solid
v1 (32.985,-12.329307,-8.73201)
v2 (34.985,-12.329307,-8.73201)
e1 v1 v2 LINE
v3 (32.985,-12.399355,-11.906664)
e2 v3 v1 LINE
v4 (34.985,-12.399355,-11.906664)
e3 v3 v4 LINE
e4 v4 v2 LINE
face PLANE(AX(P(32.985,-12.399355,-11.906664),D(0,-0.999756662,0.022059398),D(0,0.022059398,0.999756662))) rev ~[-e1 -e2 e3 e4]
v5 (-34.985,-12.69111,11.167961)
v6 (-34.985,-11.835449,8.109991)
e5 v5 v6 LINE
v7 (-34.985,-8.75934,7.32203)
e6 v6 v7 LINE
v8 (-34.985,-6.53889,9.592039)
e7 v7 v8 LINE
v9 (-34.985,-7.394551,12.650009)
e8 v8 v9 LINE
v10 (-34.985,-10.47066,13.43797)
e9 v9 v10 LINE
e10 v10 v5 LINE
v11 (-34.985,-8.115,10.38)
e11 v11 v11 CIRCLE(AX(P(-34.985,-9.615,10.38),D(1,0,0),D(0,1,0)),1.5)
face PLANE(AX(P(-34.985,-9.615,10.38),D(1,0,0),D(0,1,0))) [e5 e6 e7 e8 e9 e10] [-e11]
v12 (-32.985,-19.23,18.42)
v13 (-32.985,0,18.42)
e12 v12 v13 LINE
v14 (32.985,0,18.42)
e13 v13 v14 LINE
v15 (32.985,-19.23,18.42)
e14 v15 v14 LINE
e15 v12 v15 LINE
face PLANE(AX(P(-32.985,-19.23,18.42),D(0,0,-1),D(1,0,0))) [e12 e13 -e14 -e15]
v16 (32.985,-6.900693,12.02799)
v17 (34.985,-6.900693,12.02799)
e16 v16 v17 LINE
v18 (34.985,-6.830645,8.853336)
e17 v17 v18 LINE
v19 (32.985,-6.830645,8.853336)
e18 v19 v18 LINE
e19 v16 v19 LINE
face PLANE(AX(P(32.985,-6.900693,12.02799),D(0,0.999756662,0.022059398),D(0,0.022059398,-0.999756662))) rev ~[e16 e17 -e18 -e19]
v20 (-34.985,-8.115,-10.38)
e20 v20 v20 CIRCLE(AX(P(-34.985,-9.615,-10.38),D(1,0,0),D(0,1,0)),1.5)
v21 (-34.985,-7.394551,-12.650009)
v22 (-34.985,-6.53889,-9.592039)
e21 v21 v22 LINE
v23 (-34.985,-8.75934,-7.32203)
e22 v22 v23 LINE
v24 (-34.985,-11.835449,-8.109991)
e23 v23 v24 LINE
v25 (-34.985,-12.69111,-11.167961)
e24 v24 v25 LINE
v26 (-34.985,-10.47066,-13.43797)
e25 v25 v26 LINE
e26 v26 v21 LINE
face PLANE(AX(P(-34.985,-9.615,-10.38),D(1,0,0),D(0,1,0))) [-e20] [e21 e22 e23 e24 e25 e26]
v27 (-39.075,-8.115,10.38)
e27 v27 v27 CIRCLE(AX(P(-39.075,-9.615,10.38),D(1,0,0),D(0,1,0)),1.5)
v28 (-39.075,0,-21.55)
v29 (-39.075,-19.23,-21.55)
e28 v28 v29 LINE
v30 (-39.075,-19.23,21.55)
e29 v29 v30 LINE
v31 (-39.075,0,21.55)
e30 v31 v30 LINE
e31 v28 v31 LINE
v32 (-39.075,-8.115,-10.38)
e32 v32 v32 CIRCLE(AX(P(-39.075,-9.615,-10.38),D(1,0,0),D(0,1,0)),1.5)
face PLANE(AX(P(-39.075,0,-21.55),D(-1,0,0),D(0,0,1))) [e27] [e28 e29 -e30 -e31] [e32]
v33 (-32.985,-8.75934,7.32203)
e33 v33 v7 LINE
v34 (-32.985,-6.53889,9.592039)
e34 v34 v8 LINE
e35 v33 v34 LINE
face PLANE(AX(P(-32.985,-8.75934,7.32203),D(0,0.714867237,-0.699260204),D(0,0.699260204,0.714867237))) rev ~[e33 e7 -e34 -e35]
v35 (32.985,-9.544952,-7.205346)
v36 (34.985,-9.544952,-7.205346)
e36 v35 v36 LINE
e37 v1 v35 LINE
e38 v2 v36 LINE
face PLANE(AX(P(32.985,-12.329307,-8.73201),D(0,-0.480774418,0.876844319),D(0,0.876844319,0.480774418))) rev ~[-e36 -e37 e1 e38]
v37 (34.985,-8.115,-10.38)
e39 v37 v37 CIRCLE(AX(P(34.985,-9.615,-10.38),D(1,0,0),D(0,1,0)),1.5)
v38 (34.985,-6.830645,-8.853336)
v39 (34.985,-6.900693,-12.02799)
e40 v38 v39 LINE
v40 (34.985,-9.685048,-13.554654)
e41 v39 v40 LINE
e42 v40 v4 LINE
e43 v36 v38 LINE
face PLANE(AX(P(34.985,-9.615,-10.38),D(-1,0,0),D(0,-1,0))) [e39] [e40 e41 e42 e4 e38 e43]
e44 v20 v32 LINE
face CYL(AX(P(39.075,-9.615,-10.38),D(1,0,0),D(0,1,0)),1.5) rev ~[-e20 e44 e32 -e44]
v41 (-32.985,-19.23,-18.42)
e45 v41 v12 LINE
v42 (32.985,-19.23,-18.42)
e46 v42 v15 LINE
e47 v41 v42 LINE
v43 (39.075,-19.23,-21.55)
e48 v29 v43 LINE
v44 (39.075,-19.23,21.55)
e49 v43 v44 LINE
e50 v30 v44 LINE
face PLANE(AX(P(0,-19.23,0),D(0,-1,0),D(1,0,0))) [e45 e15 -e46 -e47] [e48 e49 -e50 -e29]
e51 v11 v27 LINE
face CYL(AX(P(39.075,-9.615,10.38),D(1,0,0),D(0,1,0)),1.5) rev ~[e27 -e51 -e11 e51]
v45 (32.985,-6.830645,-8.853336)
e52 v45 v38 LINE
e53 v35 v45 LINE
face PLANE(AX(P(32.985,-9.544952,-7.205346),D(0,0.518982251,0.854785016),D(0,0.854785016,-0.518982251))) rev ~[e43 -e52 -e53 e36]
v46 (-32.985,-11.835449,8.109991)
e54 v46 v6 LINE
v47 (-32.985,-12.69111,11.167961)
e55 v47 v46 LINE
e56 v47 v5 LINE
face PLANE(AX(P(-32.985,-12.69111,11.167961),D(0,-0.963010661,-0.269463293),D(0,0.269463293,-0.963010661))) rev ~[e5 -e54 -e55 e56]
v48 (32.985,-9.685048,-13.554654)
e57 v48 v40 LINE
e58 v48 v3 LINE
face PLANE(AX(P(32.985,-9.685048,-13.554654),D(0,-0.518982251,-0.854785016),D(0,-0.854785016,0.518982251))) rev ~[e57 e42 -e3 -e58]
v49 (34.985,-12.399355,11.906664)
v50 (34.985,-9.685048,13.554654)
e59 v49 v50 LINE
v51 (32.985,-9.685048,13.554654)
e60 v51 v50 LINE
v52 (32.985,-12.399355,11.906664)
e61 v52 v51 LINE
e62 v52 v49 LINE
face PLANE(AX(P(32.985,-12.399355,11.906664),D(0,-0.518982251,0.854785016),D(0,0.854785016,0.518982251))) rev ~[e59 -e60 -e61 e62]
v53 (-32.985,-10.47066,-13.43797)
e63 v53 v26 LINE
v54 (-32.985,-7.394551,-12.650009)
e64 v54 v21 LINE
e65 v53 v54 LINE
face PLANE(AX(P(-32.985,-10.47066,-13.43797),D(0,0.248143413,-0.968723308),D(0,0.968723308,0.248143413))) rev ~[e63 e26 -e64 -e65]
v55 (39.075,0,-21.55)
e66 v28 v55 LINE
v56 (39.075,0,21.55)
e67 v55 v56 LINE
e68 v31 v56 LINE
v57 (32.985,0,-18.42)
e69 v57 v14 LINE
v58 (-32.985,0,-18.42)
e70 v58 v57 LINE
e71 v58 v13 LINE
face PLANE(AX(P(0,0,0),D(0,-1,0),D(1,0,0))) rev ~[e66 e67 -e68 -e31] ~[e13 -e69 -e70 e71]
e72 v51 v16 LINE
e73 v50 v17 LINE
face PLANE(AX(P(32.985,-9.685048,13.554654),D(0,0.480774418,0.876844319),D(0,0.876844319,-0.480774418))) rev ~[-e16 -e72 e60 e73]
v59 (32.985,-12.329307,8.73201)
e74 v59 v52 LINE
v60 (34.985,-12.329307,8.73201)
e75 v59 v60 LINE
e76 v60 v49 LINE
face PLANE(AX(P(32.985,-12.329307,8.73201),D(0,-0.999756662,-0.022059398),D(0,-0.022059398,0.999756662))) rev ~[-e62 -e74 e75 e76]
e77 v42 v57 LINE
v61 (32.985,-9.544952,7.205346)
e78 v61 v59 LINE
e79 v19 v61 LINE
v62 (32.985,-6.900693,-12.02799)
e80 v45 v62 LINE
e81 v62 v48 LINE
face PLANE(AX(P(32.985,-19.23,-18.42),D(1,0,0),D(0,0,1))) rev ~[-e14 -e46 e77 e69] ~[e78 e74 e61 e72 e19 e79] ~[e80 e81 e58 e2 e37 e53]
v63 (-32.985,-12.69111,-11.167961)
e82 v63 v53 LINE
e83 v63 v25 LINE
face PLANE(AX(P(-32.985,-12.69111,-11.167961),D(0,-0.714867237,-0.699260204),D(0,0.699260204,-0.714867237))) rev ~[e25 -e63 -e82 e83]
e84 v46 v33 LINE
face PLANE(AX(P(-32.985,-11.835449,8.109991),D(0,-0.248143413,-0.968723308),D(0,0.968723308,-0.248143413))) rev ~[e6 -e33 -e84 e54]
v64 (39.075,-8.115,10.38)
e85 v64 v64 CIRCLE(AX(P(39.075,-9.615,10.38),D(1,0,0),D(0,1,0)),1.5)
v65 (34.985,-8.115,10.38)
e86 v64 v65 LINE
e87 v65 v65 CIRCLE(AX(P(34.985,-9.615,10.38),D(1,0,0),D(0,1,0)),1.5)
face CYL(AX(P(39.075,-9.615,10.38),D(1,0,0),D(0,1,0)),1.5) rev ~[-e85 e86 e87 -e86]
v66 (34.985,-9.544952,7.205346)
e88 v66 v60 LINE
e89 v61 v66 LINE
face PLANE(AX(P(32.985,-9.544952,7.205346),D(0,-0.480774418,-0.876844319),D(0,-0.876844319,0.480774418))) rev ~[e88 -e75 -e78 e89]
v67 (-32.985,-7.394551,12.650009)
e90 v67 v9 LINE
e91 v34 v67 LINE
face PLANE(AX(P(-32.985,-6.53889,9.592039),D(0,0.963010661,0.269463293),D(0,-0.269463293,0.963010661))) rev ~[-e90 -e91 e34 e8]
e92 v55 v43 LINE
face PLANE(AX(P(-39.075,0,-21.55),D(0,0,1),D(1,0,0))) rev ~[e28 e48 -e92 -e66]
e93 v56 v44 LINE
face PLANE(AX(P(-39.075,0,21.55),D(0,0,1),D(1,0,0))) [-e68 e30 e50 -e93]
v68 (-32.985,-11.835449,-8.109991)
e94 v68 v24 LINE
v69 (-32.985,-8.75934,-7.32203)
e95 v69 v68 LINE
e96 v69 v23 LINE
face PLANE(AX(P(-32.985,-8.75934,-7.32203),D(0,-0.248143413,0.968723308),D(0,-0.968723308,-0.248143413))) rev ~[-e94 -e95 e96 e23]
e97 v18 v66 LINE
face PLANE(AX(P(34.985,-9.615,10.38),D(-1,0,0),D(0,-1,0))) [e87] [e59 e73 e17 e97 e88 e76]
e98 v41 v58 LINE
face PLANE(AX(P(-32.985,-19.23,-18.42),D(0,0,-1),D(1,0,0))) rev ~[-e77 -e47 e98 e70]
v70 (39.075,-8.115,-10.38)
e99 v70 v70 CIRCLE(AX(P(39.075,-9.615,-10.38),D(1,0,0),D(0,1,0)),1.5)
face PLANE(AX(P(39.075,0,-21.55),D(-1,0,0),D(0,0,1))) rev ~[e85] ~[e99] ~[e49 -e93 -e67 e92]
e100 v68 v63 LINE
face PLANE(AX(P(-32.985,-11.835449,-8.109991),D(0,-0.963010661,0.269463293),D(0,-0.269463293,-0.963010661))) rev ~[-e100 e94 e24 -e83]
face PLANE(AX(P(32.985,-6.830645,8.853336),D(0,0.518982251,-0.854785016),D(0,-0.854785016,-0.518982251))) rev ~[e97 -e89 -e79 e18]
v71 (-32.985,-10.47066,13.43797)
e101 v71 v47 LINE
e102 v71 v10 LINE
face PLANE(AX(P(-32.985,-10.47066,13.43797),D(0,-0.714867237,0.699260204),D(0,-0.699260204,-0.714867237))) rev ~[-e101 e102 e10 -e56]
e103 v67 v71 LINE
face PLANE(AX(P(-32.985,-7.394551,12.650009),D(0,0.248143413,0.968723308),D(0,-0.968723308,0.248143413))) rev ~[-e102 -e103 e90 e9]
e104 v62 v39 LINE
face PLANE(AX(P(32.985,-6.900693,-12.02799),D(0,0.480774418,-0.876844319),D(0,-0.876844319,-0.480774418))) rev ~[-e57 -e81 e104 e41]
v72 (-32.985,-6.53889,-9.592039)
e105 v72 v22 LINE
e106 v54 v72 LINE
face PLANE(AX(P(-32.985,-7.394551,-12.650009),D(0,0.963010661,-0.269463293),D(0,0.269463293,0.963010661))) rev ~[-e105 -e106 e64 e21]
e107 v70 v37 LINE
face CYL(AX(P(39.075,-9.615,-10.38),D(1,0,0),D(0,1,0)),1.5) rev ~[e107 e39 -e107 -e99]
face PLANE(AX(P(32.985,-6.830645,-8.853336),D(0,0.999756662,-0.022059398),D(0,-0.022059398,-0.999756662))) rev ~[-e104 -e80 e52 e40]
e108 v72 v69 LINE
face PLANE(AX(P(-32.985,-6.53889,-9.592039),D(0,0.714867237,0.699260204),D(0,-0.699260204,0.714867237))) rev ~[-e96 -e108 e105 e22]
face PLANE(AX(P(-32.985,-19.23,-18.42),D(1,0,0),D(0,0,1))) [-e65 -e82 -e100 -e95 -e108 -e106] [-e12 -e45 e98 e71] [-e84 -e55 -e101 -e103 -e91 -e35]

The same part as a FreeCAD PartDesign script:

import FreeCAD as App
import Part
import Sketcher
from FreeCAD import Vector
Q = App.Units.Quantity

doc = App.newDocument("Part")
body = doc.addObject("PartDesign::Body", "Body")

sketch1 = doc.addObject("Sketcher::SketchObject", "Sketch")
body.addObject(sketch1)
sketch1.AttachmentSupport = (doc.XZ_Plane, [""])
sketch1.MapMode = "FlatFace"
sketch1.addGeometry([
    Part.LineSegment(Vector(-39, 22, 0), Vector(-39, -22, 0)),
    Part.LineSegment(Vector(-39, -22, 0), Vector(39, -22, 0)),
    Part.LineSegment(Vector(39, -22, 0), Vector(39, 22, 0)),
    Part.LineSegment(Vector(39, 22, 0), Vector(-39, 22, 0)),
], False)
sketch1.addConstraint([
    Sketcher.Constraint("Coincident", 0, 2, 1, 1),
    Sketcher.Constraint("Coincident", 1, 2, 2, 1),
    Sketcher.Constraint("Coincident", 2, 2, 3, 1),
    Sketcher.Constraint("Coincident", 3, 2, 0, 1),
    Sketcher.Constraint("Vertical", 0),
    Sketcher.Constraint("Horizontal", 1),
    Sketcher.Constraint("Vertical", 2),
    Sketcher.Constraint("Horizontal", 3),
    Sketcher.Constraint("Symmetric", 0, 2, 2, 2, -1, 1),
    Sketcher.Constraint("DistanceY", 0, 2, 0, 1, Q("43.1 mm")),
    Sketcher.Constraint("DistanceX", 1, 1, 1, 2, Q("78.15 mm")),
])
pad1 = doc.addObject("PartDesign::Pad", "Pad")
body.addObject(pad1)
pad1.Profile = sketch1
pad1.Length = 19.23

sketch2 = doc.addObject("Sketcher::SketchObject", "Sketch001")
body.addObject(sketch2)
sketch2.AttachmentSupport = (doc.XZ_Plane, [""])
sketch2.MapMode = "FlatFace"
sketch2.AttachmentOffset = App.Placement(Vector(0, 0, 19.23), App.Rotation())
sketch2.addGeometry([
    Part.LineSegment(Vector(-33, 18, 0), Vector(-33, -18, 0)),
    Part.LineSegment(Vector(-33, -18, 0), Vector(33, -18, 0)),
    Part.LineSegment(Vector(33, -18, 0), Vector(33, 18, 0)),
    Part.LineSegment(Vector(33, 18, 0), Vector(-33, 18, 0)),
], False)
sketch2.addConstraint([
    Sketcher.Constraint("Coincident", 0, 2, 1, 1),
    Sketcher.Constraint("Coincident", 1, 2, 2, 1),
    Sketcher.Constraint("Coincident", 2, 2, 3, 1),
    Sketcher.Constraint("Coincident", 3, 2, 0, 1),
    Sketcher.Constraint("Vertical", 0),
    Sketcher.Constraint("Horizontal", 1),
    Sketcher.Constraint("Vertical", 2),
    Sketcher.Constraint("Horizontal", 3),
    Sketcher.Constraint("Symmetric", 0, 2, 2, 2, -1, 1),
    Sketcher.Constraint("DistanceX", 1, 1, 1, 2, Q("65.97 mm")),
    Sketcher.Constraint("DistanceY", 0, 2, 0, 1, Q("36.84 mm")),
])
pocket1 = doc.addObject("PartDesign::Pocket", "Pocket")
body.addObject(pocket1)
pocket1.Profile = sketch2
pocket1.Length = 35

sketch3 = doc.addObject("Sketcher::SketchObject", "Sketch002")
body.addObject(sketch3)
sketch3.AttachmentSupport = (doc.YZ_Plane, [""])
sketch3.MapMode = "FlatFace"
sketch3.AttachmentOffset = App.Placement(Vector(0, 0, 39.075), App.Rotation())
sketch3.addGeometry([
    Part.Circle(Vector(-9.6, -10.4, 0), Vector(0, 0, 1), 1.5),
    Part.Circle(Vector(-9.6, 10.4, 0), Vector(0, 0, 1), 1.5),
], False)
sketch3.addConstraint([
    Sketcher.Constraint("Equal", 0, 1),
    Sketcher.Constraint("Symmetric", 0, 3, 1, 3, -1),
    Sketcher.Constraint("Diameter", 0, Q("3 mm")),
    Sketcher.Constraint("DistanceY", 0, 3, -1, 1, Q("10.38 mm")),
    Sketcher.Constraint("DistanceX", 0, 3, -1, 1, Q("9.615 mm")),
])
pocket2 = doc.addObject("PartDesign::Pocket", "Pocket001")
body.addObject(pocket2)
pocket2.Profile = sketch3
pocket2.Length = 80

sketch4 = doc.addObject("Sketcher::SketchObject", "Sketch003")
body.addObject(sketch4)
sketch4.AttachmentSupport = (doc.YZ_Plane, [""])
sketch4.MapMode = "FlatFace"
sketch4.AttachmentOffset = App.Placement(Vector(0, 0, -32.985), App.Rotation())
sketch4.addGeometry([
    Part.LineSegment(Vector(-8.8, 7.3, 0), Vector(-6.5, 9.6, 0)),
    Part.LineSegment(Vector(-6.5, 9.6, 0), Vector(-7.4, 12.7, 0)),
    Part.LineSegment(Vector(-7.4, 12.7, 0), Vector(-10.5, 13.4, 0)),
    Part.LineSegment(Vector(-10.5, 13.4, 0), Vector(-12.7, 11.2, 0)),
    Part.LineSegment(Vector(-12.7, 11.2, 0), Vector(-11.8, 8.1, 0)),
    Part.LineSegment(Vector(-11.8, 8.1, 0), Vector(-8.8, 7.3, 0)),
    Part.Circle(Vector(-9.6, 10.4, 0), Vector(0, 0, 1), 1.5),
    Part.LineSegment(Vector(-7.4, -12.7, 0), Vector(-6.5, -9.6, 0)),
    Part.LineSegment(Vector(-6.5, -9.6, 0), Vector(-8.8, -7.3, 0)),
    Part.LineSegment(Vector(-8.8, -7.3, 0), Vector(-11.8, -8.1, 0)),
    Part.LineSegment(Vector(-11.8, -8.1, 0), Vector(-12.7, -11.2, 0)),
    Part.LineSegment(Vector(-12.7, -11.2, 0), Vector(-10.5, -13.4, 0)),
    Part.LineSegment(Vector(-10.5, -13.4, 0), Vector(-7.4, -12.7, 0)),
    Part.Circle(Vector(-9.6, -10.4, 0), Vector(0, 0, 1), 1.5),
], False)
sketch4.addConstraint([
    Sketcher.Constraint("Coincident", 0, 2, 1, 1),
    Sketcher.Constraint("Coincident", 1, 2, 2, 1),
    Sketcher.Constraint("Coincident", 2, 2, 3, 1),
    Sketcher.Constraint("Coincident", 3, 2, 4, 1),
    Sketcher.Constraint("Coincident", 4, 2, 5, 1),
    Sketcher.Constraint("Coincident", 5, 2, 0, 1),
    Sketcher.Constraint("Coincident", 7, 2, 8, 1),
    Sketcher.Constraint("Coincident", 8, 2, 9, 1),
    Sketcher.Constraint("Coincident", 9, 2, 10, 1),
    Sketcher.Constraint("Coincident", 10, 2, 11, 1),
    Sketcher.Constraint("Coincident", 11, 2, 12, 1),
    Sketcher.Constraint("Coincident", 12, 2, 7, 1),
    Sketcher.Constraint("Equal", 6, 13),
    Sketcher.Constraint("Symmetric", 6, 3, 13, 3, -1),
    Sketcher.Constraint("Symmetric", 0, 2, 7, 2, -1),
    Sketcher.Constraint("Symmetric", 5, 2, 8, 2, -1),
    Sketcher.Constraint("Symmetric", 4, 2, 9, 2, -1),
    Sketcher.Constraint("Symmetric", 3, 2, 10, 2, -1),
    Sketcher.Constraint("Symmetric", 2, 2, 11, 2, -1),
    Sketcher.Constraint("Symmetric", 1, 2, 12, 2, -1),
    Sketcher.Constraint("Parallel", 0, 3),
    Sketcher.Constraint("Parallel", 1, 4),
    Sketcher.Constraint("Parallel", 2, 5),
    Sketcher.Constraint("Equal", 0, 1),
    Sketcher.Constraint("Equal", 1, 2),
    Sketcher.Constraint("Equal", 2, 3),
    Sketcher.Constraint("Diameter", 6, Q("3 mm")),
    Sketcher.Constraint("DistanceY", -1, 1, 6, 3, Q("10.38 mm")),
    Sketcher.Constraint("DistanceX", 6, 3, -1, 1, Q("9.615 mm")),
    Sketcher.Constraint("DistanceX", 4, 2, 1, 2, Q("4.440898 mm")),
    Sketcher.Constraint("DistanceX", 0, 2, -1, 1, Q("6.53889 mm")),
    Sketcher.Constraint("DistanceY", -1, 1, 0, 2, Q("9.592039 mm")),
    Sketcher.Constraint("DistanceX", 1, 2, -1, 1, Q("7.394551 mm")),
    Sketcher.Constraint("DistanceY", -1, 1, 1, 2, Q("12.650009 mm")),
    Sketcher.Constraint("DistanceX", 2, 2, -1, 1, Q("10.47066 mm")),
])
pocket3 = doc.addObject("PartDesign::Pocket", "Pocket002")
body.addObject(pocket3)
pocket3.Profile = sketch4
pocket3.Length = 2

sketch5 = doc.addObject("Sketcher::SketchObject", "Sketch004")
body.addObject(sketch5)
sketch5.AttachmentSupport = (doc.YZ_Plane, [""])
sketch5.MapMode = "FlatFace"
sketch5.AttachmentOffset = App.Placement(Vector(0, 0, 32.985), App.Rotation())
sketch5.addGeometry([
    Part.LineSegment(Vector(-9.7, 13.6, 0), Vector(-6.9, 12, 0)),
    Part.LineSegment(Vector(-6.9, 12, 0), Vector(-6.8, 8.9, 0)),
    Part.LineSegment(Vector(-6.8, 8.9, 0), Vector(-9.5, 7.2, 0)),
    Part.LineSegment(Vector(-9.5, 7.2, 0), Vector(-12.3, 8.7, 0)),
    Part.LineSegment(Vector(-12.3, 8.7, 0), Vector(-12.4, 11.9, 0)),
    Part.LineSegment(Vector(-12.4, 11.9, 0), Vector(-9.7, 13.6, 0)),
    Part.LineSegment(Vector(-6.9, -12, 0), Vector(-9.7, -13.6, 0)),
    Part.LineSegment(Vector(-9.7, -13.6, 0), Vector(-12.4, -11.9, 0)),
    Part.LineSegment(Vector(-12.4, -11.9, 0), Vector(-12.3, -8.7, 0)),
    Part.LineSegment(Vector(-12.3, -8.7, 0), Vector(-9.5, -7.2, 0)),
    Part.LineSegment(Vector(-9.5, -7.2, 0), Vector(-6.8, -8.9, 0)),
    Part.LineSegment(Vector(-6.8, -8.9, 0), Vector(-6.9, -12, 0)),
], False)
sketch5.addConstraint([
    Sketcher.Constraint("Coincident", 0, 2, 1, 1),
    Sketcher.Constraint("Coincident", 1, 2, 2, 1),
    Sketcher.Constraint("Coincident", 2, 2, 3, 1),
    Sketcher.Constraint("Coincident", 3, 2, 4, 1),
    Sketcher.Constraint("Coincident", 4, 2, 5, 1),
    Sketcher.Constraint("Coincident", 5, 2, 0, 1),
    Sketcher.Constraint("Coincident", 6, 2, 7, 1),
    Sketcher.Constraint("Coincident", 7, 2, 8, 1),
    Sketcher.Constraint("Coincident", 8, 2, 9, 1),
    Sketcher.Constraint("Coincident", 9, 2, 10, 1),
    Sketcher.Constraint("Coincident", 10, 2, 11, 1),
    Sketcher.Constraint("Coincident", 11, 2, 6, 1),
    Sketcher.Constraint("Symmetric", 5, 2, 6, 2, -1),
    Sketcher.Constraint("Symmetric", 4, 2, 7, 2, -1),
    Sketcher.Constraint("Symmetric", 3, 2, 8, 2, -1),
    Sketcher.Constraint("Symmetric", 2, 2, 9, 2, -1),
    Sketcher.Constraint("Symmetric", 1, 2, 10, 2, -1),
    Sketcher.Constraint("Symmetric", 0, 2, 11, 2, -1),
    Sketcher.Constraint("Parallel", 0, 3),
    Sketcher.Constraint("Parallel", 1, 4),
    Sketcher.Constraint("Parallel", 2, 5),
    Sketcher.Constraint("Equal", 0, 1),
    Sketcher.Constraint("Equal", 1, 2),
    Sketcher.Constraint("Equal", 2, 3),
    Sketcher.Constraint("DistanceY", 6, 2, 2, 2, Q("20.76 mm")),
    Sketcher.Constraint("DistanceY", -1, 1, 0, 2, Q("12.02799 mm")),
    Sketcher.Constraint("DistanceX", 0, 2, 1, 2, Q("0.070048 mm")),
    Sketcher.Constraint("DistanceY", 2, 2, 1, 2, Q("1.64799 mm")),
    Sketcher.Constraint("DistanceX", 2, 2, 0, 2, Q("2.644259 mm")),
    Sketcher.Constraint("DistanceX", 0, 2, -1, 1, Q("6.900693 mm")),
])
pocket4 = doc.addObject("PartDesign::Pocket", "Pocket003")
body.addObject(pocket4)
pocket4.Profile = sketch5
pocket4.Length = 2
pocket4.Reversed = True

doc.recompute()
